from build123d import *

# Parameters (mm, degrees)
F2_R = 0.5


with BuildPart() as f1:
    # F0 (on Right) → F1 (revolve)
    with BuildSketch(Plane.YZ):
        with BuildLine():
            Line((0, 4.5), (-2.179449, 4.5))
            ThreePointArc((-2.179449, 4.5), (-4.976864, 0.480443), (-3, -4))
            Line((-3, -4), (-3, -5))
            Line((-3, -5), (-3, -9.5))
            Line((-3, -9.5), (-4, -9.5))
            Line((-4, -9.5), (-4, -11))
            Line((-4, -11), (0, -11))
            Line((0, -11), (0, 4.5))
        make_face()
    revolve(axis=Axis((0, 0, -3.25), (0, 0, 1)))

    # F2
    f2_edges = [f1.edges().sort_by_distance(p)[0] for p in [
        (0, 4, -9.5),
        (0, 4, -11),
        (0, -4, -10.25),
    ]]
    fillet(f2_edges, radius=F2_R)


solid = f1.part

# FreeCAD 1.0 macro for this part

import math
import FreeCAD as App
import Part
import Sketcher

V = App.Vector


def edges_at(feature, points):
    """Names of the edges that pass closest to the given points."""
    edges = feature.Shape.Edges
    near = lambda p: min(range(len(edges)), key=lambda i: edges[i].distToShape(Part.Vertex(*p))[0])
    return sorted({f"Edge{near(p) + 1}" for p in points})

doc = App.newDocument("Part")
params = doc.addObject("Spreadsheet::Sheet", "Params")
for row, (alias, value) in enumerate([
    ("sketch1_radius", "5 mm"),
    ("sketch1_width", "1 mm"),
    ("sketch1_width2", "4 mm"),
    ("sketch1_height", "5.5 mm"),
    ("sketch1_height2", "1.5 mm"),
    ("revolution_angle", "360 deg"),
    ("fillet_radius", "0.5 mm"),
], start=1):
    params.set(f"A{row}", alias)
    params.set(f"B{row}", "=" + value)
    params.setAlias(f"B{row}", alias)

body = doc.addObject("PartDesign::Body", "Body")

# Sketch on YZ plane
sketch1 = doc.addObject("Sketcher::SketchObject", "Sketch")
body.addObject(sketch1)
sketch1.AttachmentSupport = (doc.YZ_Plane, [""])
sketch1.MapMode = "FlatFace"
sketch1.addGeometry(Part.LineSegment(V(0, 4.5, 0), V(-2.2, 4.5, 0)), False)
sketch1.addGeometry(Part.ArcOfCircle(Part.Circle(V(0, 0, 0), V(0, 0, 1), 5), math.radians(116), math.radians(233)), False)
sketch1.addGeometry(Part.LineSegment(V(-3, -4, 0), V(-3, -9.5, 0)), False)
sketch1.addGeometry(Part.LineSegment(V(-3, -9.5, 0), V(-4, -9.5, 0)), False)
sketch1.addGeometry(Part.LineSegment(V(-4, -9.5, 0), V(-4, -11, 0)), False)
sketch1.addGeometry(Part.LineSegment(V(-4, -11, 0), V(0, -11, 0)), False)
sketch1.addGeometry(Part.LineSegment(V(0, -11, 0), V(0, 4.5, 0)), False)
sketch1.addConstraint(Sketcher.Constraint("Coincident", 0, 2, 1, 1))
sketch1.addConstraint(Sketcher.Constraint("Coincident", 1, 2, 2, 1))
sketch1.addConstraint(Sketcher.Constraint("Coincident", 2, 2, 3, 1))
sketch1.addConstraint(Sketcher.Constraint("Coincident", 3, 2, 4, 1))
sketch1.addConstraint(Sketcher.Constraint("Coincident", 4, 2, 5, 1))
sketch1.addConstraint(Sketcher.Constraint("Coincident", 5, 2, 6, 1))
sketch1.addConstraint(Sketcher.Constraint("Coincident", 6, 2, 0, 1))
sketch1.addConstraint(Sketcher.Constraint("Horizontal", 0))
sketch1.addConstraint(Sketcher.Constraint("Vertical", 2))
sketch1.addConstraint(Sketcher.Constraint("Horizontal", 3))
sketch1.addConstraint(Sketcher.Constraint("Vertical", 4))
sketch1.addConstraint(Sketcher.Constraint("Horizontal", 5))
sketch1.addConstraint(Sketcher.Constraint("Vertical", 6))
sketch1.addConstraint(Sketcher.Constraint("Coincident", 1, 3, -1, 1))
sketch1.addConstraint(Sketcher.Constraint("PointOnObject", 5, 2, -2))
sketch1.addConstraint(Sketcher.Constraint("Radius", 1, 5.0))
sketch1.addConstraint(Sketcher.Constraint("DistanceX", 3, 2, 3, 1, 1.0))
sketch1.addConstraint(Sketcher.Constraint("DistanceX", 5, 1, 5, 2, 4.0))
sketch1.addConstraint(Sketcher.Constraint("DistanceY", 2, 2, 2, 1, 5.5))
sketch1.addConstraint(Sketcher.Constraint("DistanceY", 4, 2, 4, 1, 1.5))
sketch1.addConstraint(Sketcher.Constraint("DistanceY", 6, 1, 6, 2, 15.5))
sketch1.setExpression("Constraints[15]", "Params.sketch1_radius")
sketch1.setExpression("Constraints[16]", "Params.sketch1_width")
sketch1.setExpression("Constraints[17]", "Params.sketch1_width2")
sketch1.setExpression("Constraints[18]", "Params.sketch1_height")
sketch1.setExpression("Constraints[19]", "Params.sketch1_height2")
revolution = doc.addObject("PartDesign::Revolution", "Revolution")
body.addObject(revolution)
revolution.Profile = sketch1
revolution.ReferenceAxis = (sketch1, ["V_Axis"])
revolution.setExpression("Angle", "Params.revolution_angle")
doc.recompute()

fillet = doc.addObject("PartDesign::Fillet", "Fillet")
body.addObject(fillet)
fillet.Base = (revolution, edges_at(revolution, [(0, 4, -9.5), (0, 4, -11), (0, -4, -10.25)]))
fillet.setExpression("Radius", "Params.fillet_radius")

doc.recompute()
